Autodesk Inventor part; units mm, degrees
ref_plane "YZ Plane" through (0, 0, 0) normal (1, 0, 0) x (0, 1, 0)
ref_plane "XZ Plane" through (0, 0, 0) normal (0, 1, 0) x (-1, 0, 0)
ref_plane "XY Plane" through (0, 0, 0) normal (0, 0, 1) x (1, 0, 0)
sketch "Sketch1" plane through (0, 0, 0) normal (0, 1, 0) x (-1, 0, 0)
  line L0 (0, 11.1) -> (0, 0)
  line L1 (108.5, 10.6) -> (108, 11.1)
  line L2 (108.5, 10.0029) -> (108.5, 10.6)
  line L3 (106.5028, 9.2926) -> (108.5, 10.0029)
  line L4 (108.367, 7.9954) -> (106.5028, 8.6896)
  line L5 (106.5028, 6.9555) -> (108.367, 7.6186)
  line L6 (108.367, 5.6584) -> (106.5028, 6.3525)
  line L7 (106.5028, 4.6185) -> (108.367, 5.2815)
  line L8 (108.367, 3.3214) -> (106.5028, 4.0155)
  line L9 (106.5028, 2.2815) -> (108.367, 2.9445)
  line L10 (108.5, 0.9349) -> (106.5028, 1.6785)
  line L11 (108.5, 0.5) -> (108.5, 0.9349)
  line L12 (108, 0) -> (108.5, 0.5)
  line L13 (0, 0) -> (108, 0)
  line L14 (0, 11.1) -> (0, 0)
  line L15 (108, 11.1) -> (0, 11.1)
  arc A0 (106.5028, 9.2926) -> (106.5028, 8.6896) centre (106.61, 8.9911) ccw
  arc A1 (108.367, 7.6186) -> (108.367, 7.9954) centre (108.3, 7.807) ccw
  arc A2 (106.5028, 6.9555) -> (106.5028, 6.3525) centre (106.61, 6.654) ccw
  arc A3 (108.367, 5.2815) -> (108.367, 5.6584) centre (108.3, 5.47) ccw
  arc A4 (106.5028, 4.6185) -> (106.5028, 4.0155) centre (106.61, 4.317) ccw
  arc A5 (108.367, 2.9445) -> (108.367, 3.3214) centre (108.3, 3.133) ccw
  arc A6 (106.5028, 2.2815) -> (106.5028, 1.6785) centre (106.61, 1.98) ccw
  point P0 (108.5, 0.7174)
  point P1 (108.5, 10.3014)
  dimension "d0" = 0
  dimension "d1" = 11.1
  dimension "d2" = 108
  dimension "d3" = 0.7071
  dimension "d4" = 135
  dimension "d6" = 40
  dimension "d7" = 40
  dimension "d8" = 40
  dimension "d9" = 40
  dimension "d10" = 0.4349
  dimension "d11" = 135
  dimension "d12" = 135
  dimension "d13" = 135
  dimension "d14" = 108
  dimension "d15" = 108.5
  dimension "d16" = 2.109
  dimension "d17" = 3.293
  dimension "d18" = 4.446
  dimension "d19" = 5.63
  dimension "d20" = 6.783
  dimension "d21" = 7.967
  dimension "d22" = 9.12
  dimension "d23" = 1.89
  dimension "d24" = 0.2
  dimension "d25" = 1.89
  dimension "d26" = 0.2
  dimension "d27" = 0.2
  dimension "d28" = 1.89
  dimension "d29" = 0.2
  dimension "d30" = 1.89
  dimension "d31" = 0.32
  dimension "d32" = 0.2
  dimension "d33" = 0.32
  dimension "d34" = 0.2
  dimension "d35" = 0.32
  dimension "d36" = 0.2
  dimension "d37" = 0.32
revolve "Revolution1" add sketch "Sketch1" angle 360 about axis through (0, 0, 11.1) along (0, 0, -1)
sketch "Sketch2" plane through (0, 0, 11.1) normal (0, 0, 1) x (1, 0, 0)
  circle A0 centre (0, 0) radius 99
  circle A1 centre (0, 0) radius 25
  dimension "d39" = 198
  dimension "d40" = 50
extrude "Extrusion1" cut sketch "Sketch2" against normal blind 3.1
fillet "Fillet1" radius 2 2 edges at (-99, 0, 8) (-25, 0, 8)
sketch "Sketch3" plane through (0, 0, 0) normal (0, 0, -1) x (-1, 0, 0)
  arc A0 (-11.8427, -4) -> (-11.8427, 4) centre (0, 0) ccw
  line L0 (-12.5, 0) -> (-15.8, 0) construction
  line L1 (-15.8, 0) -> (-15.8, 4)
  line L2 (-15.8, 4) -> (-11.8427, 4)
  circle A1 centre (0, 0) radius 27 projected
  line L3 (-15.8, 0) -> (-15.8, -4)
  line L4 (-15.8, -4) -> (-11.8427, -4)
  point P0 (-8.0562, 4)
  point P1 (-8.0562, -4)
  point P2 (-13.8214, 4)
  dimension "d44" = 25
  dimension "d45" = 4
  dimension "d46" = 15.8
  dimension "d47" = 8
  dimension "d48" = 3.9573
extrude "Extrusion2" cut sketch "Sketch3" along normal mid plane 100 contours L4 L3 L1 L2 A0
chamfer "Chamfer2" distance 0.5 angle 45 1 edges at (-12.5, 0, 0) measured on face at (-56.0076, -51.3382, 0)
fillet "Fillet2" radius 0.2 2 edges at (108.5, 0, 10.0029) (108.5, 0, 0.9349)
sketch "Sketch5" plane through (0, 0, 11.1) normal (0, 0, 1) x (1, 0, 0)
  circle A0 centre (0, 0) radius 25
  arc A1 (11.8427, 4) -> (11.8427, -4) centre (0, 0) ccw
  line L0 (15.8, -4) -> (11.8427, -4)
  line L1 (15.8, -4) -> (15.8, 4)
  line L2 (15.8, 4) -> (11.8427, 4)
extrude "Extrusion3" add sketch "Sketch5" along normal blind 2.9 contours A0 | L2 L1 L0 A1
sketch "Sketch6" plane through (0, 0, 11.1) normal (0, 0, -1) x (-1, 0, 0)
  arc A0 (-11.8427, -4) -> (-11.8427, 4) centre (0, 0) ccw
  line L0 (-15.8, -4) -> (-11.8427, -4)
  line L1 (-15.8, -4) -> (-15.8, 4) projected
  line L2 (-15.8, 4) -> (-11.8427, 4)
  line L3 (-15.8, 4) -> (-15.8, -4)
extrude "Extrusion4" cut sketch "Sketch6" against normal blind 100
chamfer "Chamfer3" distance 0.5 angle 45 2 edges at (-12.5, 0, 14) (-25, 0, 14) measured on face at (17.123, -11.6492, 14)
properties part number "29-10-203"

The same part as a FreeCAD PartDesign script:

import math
import FreeCAD as App
import Part
import Sketcher
from FreeCAD import Vector
Q = App.Units.Quantity


def edges_at(feature, points):
    """Names of the edges that pass closest to the given points."""
    edges = feature.Shape.Edges
    near = lambda p: min(range(len(edges)), key=lambda i: edges[i].distToShape(Part.Vertex(*p))[0])
    return sorted({f"Edge{near(p) + 1}" for p in points})

doc = App.newDocument("Part")
body = doc.addObject("PartDesign::Body", "Body")

sketch1 = body.newObject("Sketcher::SketchObject", "Sketch")
sketch1.AttachmentSupport = (doc.getObject("XZ_Plane"), [""])
sketch1.MapMode = "FlatFace"
sketch1.addGeometry([
    Part.LineSegment(Vector(-108, 11.1, 0), Vector(0, 11.1, 0)),
    Part.LineSegment(Vector(0, 11.1, 0), Vector(0, 0, 0)),
    Part.LineSegment(Vector(0, 0, 0), Vector(-108, 0, 0)),
    Part.LineSegment(Vector(-108, 0, 0), Vector(-108.5, 0.5, 0)),
    Part.LineSegment(Vector(-108.5, 0.5, 0), Vector(-108.5, 0.9349, 0)),
    Part.LineSegment(Vector(-108.5, 0.9349, 0), Vector(-106.5028, 1.6785, 0)),
    Part.ArcOfCircle(Part.Circle(Vector(-106.61, 1.98, 0), Vector(0, 0, 1), 0.319991), math.radians(-70.426874), math.radians(70.426874)),
    Part.LineSegment(Vector(-106.5028, 2.2815, 0), Vector(-108.367, 2.9445, 0)),
    Part.ArcOfCircle(Part.Circle(Vector(-108.3, 3.133, 0), Vector(0, 0, 1), 0.200053), math.radians(109.576726), math.radians(250.432871)),
    Part.LineSegment(Vector(-108.367, 3.3214, 0), Vector(-106.5028, 4.0155, 0)),
    Part.ArcOfCircle(Part.Circle(Vector(-106.61, 4.317, 0), Vector(0, 0, 1), 0.319991), math.radians(-70.426874), math.radians(70.426874)),
    Part.LineSegment(Vector(-106.5028, 4.6185, 0), Vector(-108.367, 5.2815, 0)),
    Part.ArcOfCircle(Part.Circle(Vector(-108.3, 5.47, 0), Vector(0, 0, 1), 0.200053), math.radians(109.576726), math.radians(250.432871)),
    Part.LineSegment(Vector(-108.367, 5.6584, 0), Vector(-106.5028, 6.3525, 0)),
    Part.ArcOfCircle(Part.Circle(Vector(-106.61, 6.654, 0), Vector(0, 0, 1), 0.319991), math.radians(-70.426874), math.radians(70.426874)),
    Part.LineSegment(Vector(-106.5028, 6.9555, 0), Vector(-108.367, 7.6186, 0)),
    Part.ArcOfCircle(Part.Circle(Vector(-108.3, 7.807, 0), Vector(0, 0, 1), 0.199959), math.radians(109.576726), math.radians(250.423274)),
    Part.LineSegment(Vector(-108.367, 7.9954, 0), Vector(-106.5028, 8.6896, 0)),
    Part.ArcOfCircle(Part.Circle(Vector(-106.61, 8.9911, 0), Vector(0, 0, 1), 0.319991), math.radians(-70.426874), math.radians(70.426874)),
    Part.LineSegment(Vector(-106.5028, 9.2926, 0), Vector(-108.5, 10.0029, 0)),
    Part.LineSegment(Vector(-108.5, 10.0029, 0), Vector(-108.5, 10.6, 0)),
    Part.LineSegment(Vector(-108.5, 10.6, 0), Vector(-108, 11.1, 0)),
], False)
sketch1.addConstraint([
    Sketcher.Constraint("Coincident", 0, 2, 1, 1),
    Sketcher.Constraint("Coincident", 1, 2, 2, 1),
    Sketcher.Constraint("Coincident", 2, 2, 3, 1),
    Sketcher.Constraint("Coincident", 3, 2, 4, 1),
    Sketcher.Constraint("Coincident", 4, 2, 5, 1),
    Sketcher.Constraint("Coincident", 5, 2, 6, 1),
    Sketcher.Constraint("Tangent", 6, 2, 7, 1),
    Sketcher.Constraint("Tangent", 7, 2, 8, 2),
    Sketcher.Constraint("Coincident", 8, 1, 9, 1),
    Sketcher.Constraint("Coincident", 9, 2, 10, 1),
    Sketcher.Constraint("Tangent", 10, 2, 11, 1),
    Sketcher.Constraint("Tangent", 11, 2, 12, 2),
    Sketcher.Constraint("Coincident", 12, 1, 13, 1),
    Sketcher.Constraint("Coincident", 13, 2, 14, 1),
    Sketcher.Constraint("Tangent", 14, 2, 15, 1),
    Sketcher.Constraint("Tangent", 15, 2, 16, 2),
    Sketcher.Constraint("Coincident", 16, 1, 17, 1),
    Sketcher.Constraint("Coincident", 17, 2, 18, 1),
    Sketcher.Constraint("Tangent", 18, 2, 19, 1),
    Sketcher.Constraint("Coincident", 19, 2, 20, 1),
    Sketcher.Constraint("Coincident", 20, 2, 21, 1),
    Sketcher.Constraint("Coincident", 21, 2, 0, 1),
    Sketcher.Constraint("Horizontal", 0),
    Sketcher.Constraint("Vertical", 1),
    Sketcher.Constraint("Horizontal", 2),
    Sketcher.Constraint("Vertical", 4),
    Sketcher.Constraint("Vertical", 20),
    Sketcher.Constraint("Coincident", 1, 2, -1, 1),
    Sketcher.Constraint("Equal", 6, 10),
    Sketcher.Constraint("Equal", 8, 12),
    Sketcher.Constraint("Equal", 10, 14),
    Sketcher.Constraint("Equal", 12, 16),
    Sketcher.Constraint("Equal", 14, 18),
    Sketcher.Constraint("Parallel", 5, 9),
    Sketcher.Constraint("Parallel", 7, 11),
    Sketcher.Constraint("Parallel", 9, 13),
    Sketcher.Constraint("Parallel", 11, 15),
    Sketcher.Constraint("Parallel", 13, 17),
    Sketcher.Constraint("Parallel", 15, 19),
    Sketcher.Constraint("Perpendicular", 3, 21),
    Sketcher.Constraint("Vertical", 6, 3, 10, 3),
    Sketcher.Constraint("Vertical", 8, 3, 12, 3),
    Sketcher.Constraint("Vertical", 10, 3, 14, 3),
    Sketcher.Constraint("Vertical", 12, 3, 16, 3),
    Sketcher.Constraint("Vertical", 14, 3, 18, 3),
    Sketcher.Constraint("Vertical", 5, 2, 6, 2),
    Sketcher.Constraint("Vertical", 7, 2, 8, 1),
    Sketcher.Constraint("Vertical", 6, 2, 9, 2),
    Sketcher.Constraint("Vertical", 11, 2, 12, 1),
    Sketcher.Constraint("Vertical", 10, 2, 13, 2),
    Sketcher.Constraint("Vertical", 15, 2, 16, 1),
    Sketcher.Constraint("Vertical", 14, 2, 17, 2),
    Sketcher.Constraint("Vertical", 4, 2, 19, 2),
    Sketcher.Constraint("Vertical", 2, 2, 21, 2),
    Sketcher.Constraint("Equal", 3, 21),
    Sketcher.Constraint("Radius", 8, Q("0.2 mm")),
    Sketcher.Constraint("DistanceX", 0, 1, 0, 2, Q("108 mm")),
    Sketcher.Constraint("Radius", 6, Q("0.32 mm")),
    Sketcher.Constraint("DistanceY", 1, 2, 1, 1, Q("11.1 mm")),
    Sketcher.Constraint("DistanceX", 3, 2, -1, 1, Q("108.5 mm")),
    Sketcher.Constraint("DistanceX", 3, 2, 8, 3, Q("0.2 mm")),
    Sketcher.Constraint("DistanceY", 4, 1, 4, 2, Q("0.435 mm")),
    Sketcher.Constraint("DistanceY", 6, 3, 0, 2, Q("9.12 mm")),
    Sketcher.Constraint("DistanceX", 3, 2, 6, 3, Q("1.89 mm")),
    Sketcher.Constraint("DistanceY", 18, 3, 0, 2, Q("2.109 mm")),
])
revolution = body.newObject("PartDesign::Revolution", "Revolution")
revolution.Profile = sketch1
revolution.ReferenceAxis = (sketch1, ["V_Axis"])
revolution.Angle = 360

sketch2 = body.newObject("Sketcher::SketchObject", "Sketch001")
sketch2.AttachmentSupport = (doc.getObject("XY_Plane"), [""])
sketch2.MapMode = "FlatFace"
sketch2.AttachmentOffset = App.Placement(Vector(0, 0, 11.1), App.Rotation())
sketch2.addGeometry([
    Part.Circle(Vector(0, 0, 0), Vector(0, 0, 1), 99),
    Part.Circle(Vector(0, 0, 0), Vector(0, 0, 1), 25),
], False)
sketch2.addConstraint([
    Sketcher.Constraint("Coincident", 0, 3, -1, 1),
    Sketcher.Constraint("Coincident", 1, 3, -1, 1),
    Sketcher.Constraint("Diameter", 0, Q("198 mm")),
    Sketcher.Constraint("Diameter", 1, Q("50 mm")),
])
pocket1 = body.newObject("PartDesign::Pocket", "Pocket")
pocket1.Profile = sketch2
pocket1.Length = 3.1
doc.recompute()

fillet = body.newObject("PartDesign::Fillet", "Fillet")
fillet.Base = (pocket1, edges_at(pocket1, [(-99, 0, 8), (-25, 0, 8)]))
fillet.Radius = 2

sketch3 = body.newObject("Sketcher::SketchObject", "Sketch002")
sketch3.AttachmentSupport = (doc.getObject("XY_Plane"), [""])
sketch3.MapMode = "FlatFace"
sketch3.addGeometry([
    Part.LineSegment(Vector(15.8, -4, 0), Vector(11.8427, -4, 0)),
    Part.ArcOfCircle(Part.Circle(Vector(0, 0, 0), Vector(0, 0, 1), 12.499982), math.radians(18.662953), math.radians(341.337047)),
    Part.LineSegment(Vector(11.8427, 4, 0), Vector(15.8, 4, 0)),
    Part.LineSegment(Vector(15.8, 4, 0), Vector(15.8, -4, 0)),
], False)
sketch3.addConstraint([
    Sketcher.Constraint("Coincident", 0, 2, 1, 2),
    Sketcher.Constraint("Coincident", 1, 1, 2, 1),
    Sketcher.Constraint("Coincident", 2, 2, 3, 1),
    Sketcher.Constraint("Coincident", 3, 2, 0, 1),
    Sketcher.Constraint("Horizontal", 0),
    Sketcher.Constraint("Horizontal", 2),
    Sketcher.Constraint("Vertical", 3),
    Sketcher.Constraint("Coincident", 1, 3, -1, 1),
    Sketcher.Constraint("Vertical", 0, 2, 1, 1),
    Sketcher.Constraint("Radius", 1, Q("12.5 mm")),
    Sketcher.Constraint("DistanceY", 3, 2, 3, 1, Q("8 mm")),
    Sketcher.Constraint("DistanceX", -1, 1, 2, 2, Q("15.8 mm")),
])
pocket2 = body.newObject("PartDesign::Pocket", "Pocket001")
pocket2.Profile = sketch3
pocket2.Length = 100
pocket2.Midplane = True
doc.recompute()

chamfer = body.newObject("PartDesign::Chamfer", "Chamfer")
chamfer.Base = (pocket2, edges_at(pocket2, [(-12.5, 0, 0)]))
chamfer.Size = 0.5
doc.recompute()

fillet2 = body.newObject("PartDesign::Fillet", "Fillet001")
fillet2.Base = (chamfer, edges_at(chamfer, [(108.5, 0, 10.003), (108.5, 0, 0.935)]))
fillet2.Radius = 0.2

sketch4 = body.newObject("Sketcher::SketchObject", "Sketch003")
sketch4.AttachmentSupport = (doc.getObject("XY_Plane"), [""])
sketch4.MapMode = "FlatFace"
sketch4.AttachmentOffset = App.Placement(Vector(0, 0, 11.1), App.Rotation())
sketch4.addGeometry(Part.Circle(Vector(0, 0, 0), Vector(0, 0, 1), 25), False)
sketch4.addConstraint([
    Sketcher.Constraint("Coincident", 0, 3, -1, 1),
    Sketcher.Constraint("Diameter", 0, Q("50 mm")),
])
pad1 = body.newObject("PartDesign::Pad", "Pad")
pad1.Profile = sketch4
pad1.Length = 2.9

sketch5 = body.newObject("Sketcher::SketchObject", "Sketch004")
sketch5.AttachmentSupport = (doc.getObject("XY_Plane"), [""])
sketch5.MapMode = "FlatFace"
sketch5.AttachmentOffset = App.Placement(Vector(0, 0, 11.1), App.Rotation())
sketch5.addGeometry([
    Part.LineSegment(Vector(15.8, -4, 0), Vector(11.8427, -4, 0)),
    Part.ArcOfCircle(Part.Circle(Vector(0, 0, 0), Vector(0, 0, 1), 12.499982), math.radians(18.662953), math.radians(341.337047)),
    Part.LineSegment(Vector(11.8427, 4, 0), Vector(15.8, 4, 0)),
    Part.LineSegment(Vector(15.8, 4, 0), Vector(15.8, -4, 0)),
], False)
sketch5.addConstraint([
    Sketcher.Constraint("Coincident", 0, 2, 1, 2),
    Sketcher.Constraint("Coincident", 1, 1, 2, 1),
    Sketcher.Constraint("Coincident", 2, 2, 3, 1),
    Sketcher.Constraint("Coincident", 3, 2, 0, 1),
    Sketcher.Constraint("Horizontal", 0),
    Sketcher.Constraint("Horizontal", 2),
    Sketcher.Constraint("Vertical", 3),
    Sketcher.Constraint("Coincident", 1, 3, -1, 1),
    Sketcher.Constraint("Vertical", 0, 2, 1, 1),
    Sketcher.Constraint("Radius", 1, Q("12.5 mm")),
    Sketcher.Constraint("DistanceY", 3, 2, 3, 1, Q("8 mm")),
    Sketcher.Constraint("DistanceX", -1, 1, 2, 2, Q("15.8 mm")),
])
pocket3 = body.newObject("PartDesign::Pocket", "Pocket002")
pocket3.Profile = sketch5
pocket3.Length = 100
pocket3.Reversed = True
doc.recompute()

chamfer2 = body.newObject("PartDesign::Chamfer", "Chamfer001")
chamfer2.Base = (pocket3, edges_at(pocket3, [(-12.5, 0, 14), (-25, 0, 14)]))
chamfer2.Size = 0.5

doc.recompute()
